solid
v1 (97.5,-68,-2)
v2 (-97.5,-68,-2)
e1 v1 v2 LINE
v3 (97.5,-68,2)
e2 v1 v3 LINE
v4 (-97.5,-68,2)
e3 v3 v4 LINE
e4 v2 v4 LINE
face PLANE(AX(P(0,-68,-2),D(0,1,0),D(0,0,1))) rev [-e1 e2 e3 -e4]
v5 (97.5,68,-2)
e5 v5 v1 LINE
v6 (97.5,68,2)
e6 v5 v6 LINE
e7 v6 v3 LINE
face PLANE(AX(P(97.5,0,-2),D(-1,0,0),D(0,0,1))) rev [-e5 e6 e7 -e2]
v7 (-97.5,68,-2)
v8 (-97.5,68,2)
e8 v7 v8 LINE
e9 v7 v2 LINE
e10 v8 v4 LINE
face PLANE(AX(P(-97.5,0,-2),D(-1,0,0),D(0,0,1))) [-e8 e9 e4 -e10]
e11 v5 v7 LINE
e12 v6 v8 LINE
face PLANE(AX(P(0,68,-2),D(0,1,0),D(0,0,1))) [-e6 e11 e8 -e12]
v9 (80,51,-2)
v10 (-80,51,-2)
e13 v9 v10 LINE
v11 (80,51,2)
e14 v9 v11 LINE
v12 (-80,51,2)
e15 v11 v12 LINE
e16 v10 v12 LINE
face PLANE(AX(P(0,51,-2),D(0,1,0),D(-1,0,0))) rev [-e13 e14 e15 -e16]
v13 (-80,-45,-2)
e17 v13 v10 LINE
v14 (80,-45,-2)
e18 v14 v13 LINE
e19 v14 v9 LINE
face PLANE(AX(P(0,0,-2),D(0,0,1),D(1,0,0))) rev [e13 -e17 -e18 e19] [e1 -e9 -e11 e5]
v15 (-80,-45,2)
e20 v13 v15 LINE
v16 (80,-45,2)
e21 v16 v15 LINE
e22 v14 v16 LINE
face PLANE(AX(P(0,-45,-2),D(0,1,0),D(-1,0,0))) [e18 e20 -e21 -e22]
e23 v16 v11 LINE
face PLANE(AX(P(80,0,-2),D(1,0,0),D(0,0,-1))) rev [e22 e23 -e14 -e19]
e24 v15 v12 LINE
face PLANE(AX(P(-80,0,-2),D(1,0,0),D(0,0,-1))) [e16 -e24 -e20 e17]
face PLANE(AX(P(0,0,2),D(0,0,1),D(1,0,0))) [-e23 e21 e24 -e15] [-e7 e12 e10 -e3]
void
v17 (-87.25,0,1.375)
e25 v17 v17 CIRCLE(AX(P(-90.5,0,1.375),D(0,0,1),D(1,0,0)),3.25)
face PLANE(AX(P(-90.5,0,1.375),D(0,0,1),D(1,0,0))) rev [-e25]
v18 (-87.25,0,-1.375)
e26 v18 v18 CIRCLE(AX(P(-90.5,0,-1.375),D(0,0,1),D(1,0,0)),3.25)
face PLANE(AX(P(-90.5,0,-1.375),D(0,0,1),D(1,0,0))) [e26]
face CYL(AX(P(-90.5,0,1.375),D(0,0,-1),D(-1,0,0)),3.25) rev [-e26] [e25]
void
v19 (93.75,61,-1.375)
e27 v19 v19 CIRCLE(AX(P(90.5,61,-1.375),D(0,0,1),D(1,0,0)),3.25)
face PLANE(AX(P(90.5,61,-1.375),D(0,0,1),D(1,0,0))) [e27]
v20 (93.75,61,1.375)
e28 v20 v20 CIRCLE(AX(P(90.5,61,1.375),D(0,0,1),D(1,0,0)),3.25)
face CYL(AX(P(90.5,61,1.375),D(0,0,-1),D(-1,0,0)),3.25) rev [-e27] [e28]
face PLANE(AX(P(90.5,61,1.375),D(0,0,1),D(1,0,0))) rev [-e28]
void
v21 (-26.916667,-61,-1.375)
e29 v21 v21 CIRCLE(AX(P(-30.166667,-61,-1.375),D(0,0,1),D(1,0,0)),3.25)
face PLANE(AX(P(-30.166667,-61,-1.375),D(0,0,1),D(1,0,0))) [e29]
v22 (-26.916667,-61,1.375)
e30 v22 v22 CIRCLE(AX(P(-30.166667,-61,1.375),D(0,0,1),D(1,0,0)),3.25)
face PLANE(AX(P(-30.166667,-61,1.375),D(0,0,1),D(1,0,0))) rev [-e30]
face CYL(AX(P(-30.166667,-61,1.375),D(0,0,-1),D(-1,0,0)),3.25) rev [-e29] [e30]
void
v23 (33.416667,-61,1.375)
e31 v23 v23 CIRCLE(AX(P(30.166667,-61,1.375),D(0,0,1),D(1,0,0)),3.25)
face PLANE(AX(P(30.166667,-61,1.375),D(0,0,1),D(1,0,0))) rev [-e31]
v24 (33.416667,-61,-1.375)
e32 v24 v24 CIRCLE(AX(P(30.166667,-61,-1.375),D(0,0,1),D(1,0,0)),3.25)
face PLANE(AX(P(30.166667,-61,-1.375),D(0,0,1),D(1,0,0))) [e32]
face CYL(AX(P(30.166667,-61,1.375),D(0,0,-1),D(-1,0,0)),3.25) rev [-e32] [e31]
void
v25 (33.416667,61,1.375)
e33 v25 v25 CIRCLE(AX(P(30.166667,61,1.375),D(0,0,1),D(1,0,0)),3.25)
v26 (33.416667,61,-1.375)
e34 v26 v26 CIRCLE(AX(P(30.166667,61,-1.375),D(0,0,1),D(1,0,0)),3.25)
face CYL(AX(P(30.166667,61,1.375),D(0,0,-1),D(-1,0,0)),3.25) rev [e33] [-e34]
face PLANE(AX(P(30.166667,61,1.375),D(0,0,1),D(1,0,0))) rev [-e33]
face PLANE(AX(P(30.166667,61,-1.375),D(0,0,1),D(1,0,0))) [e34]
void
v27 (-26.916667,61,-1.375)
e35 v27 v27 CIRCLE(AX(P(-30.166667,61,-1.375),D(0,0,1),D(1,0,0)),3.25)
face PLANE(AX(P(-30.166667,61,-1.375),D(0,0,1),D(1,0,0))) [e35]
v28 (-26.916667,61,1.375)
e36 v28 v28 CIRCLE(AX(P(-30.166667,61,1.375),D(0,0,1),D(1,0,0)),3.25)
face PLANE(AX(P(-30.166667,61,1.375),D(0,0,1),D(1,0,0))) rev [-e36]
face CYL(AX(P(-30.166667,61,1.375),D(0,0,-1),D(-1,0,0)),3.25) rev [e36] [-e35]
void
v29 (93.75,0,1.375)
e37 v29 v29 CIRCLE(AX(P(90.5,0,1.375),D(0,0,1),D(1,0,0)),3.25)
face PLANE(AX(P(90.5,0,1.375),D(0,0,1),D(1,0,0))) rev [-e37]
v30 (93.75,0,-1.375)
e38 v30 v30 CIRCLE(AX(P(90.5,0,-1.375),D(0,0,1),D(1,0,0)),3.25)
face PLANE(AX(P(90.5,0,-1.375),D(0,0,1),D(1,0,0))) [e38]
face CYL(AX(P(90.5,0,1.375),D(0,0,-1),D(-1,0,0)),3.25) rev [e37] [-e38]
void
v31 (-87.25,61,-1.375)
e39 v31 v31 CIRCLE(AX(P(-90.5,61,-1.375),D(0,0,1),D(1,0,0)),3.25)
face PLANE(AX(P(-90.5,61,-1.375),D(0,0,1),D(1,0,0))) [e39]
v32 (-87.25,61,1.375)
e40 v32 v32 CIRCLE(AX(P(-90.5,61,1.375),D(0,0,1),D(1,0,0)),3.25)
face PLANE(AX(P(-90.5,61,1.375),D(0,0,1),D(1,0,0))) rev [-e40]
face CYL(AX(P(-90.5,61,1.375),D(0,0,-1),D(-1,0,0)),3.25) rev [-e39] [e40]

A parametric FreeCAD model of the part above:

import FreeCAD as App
import Part
import Sketcher

V = App.Vector
Q = App.Units.Quantity

doc = App.newDocument("Part")
body = doc.addObject("PartDesign::Body", "Body")

# Sketch on XY plane
sketch1 = body.newObject("Sketcher::SketchObject", "Sketch")
sketch1.AttachmentSupport = (doc.getObject("XY_Plane"), [""])
sketch1.MapMode = "FlatFace"
sketch1.addGeometry([
    Part.LineSegment(V(-97.5, 68, 0), V(-97.5, -68, 0)),  # 0
    Part.LineSegment(V(-97.5, -68, 0), V(97.5, -68, 0)),  # 1
    Part.LineSegment(V(97.5, -68, 0), V(97.5, 68, 0)),  # 2
    Part.LineSegment(V(97.5, 68, 0), V(-97.5, 68, 0)),  # 3
    Part.LineSegment(V(-80, 51, 0), V(80, 51, 0)),  # 4
    Part.LineSegment(V(80, 51, 0), V(80, -45, 0)),  # 5
    Part.LineSegment(V(80, -45, 0), V(-80, -45, 0)),  # 6
    Part.LineSegment(V(-80, -45, 0), V(-80, 51, 0)),  # 7
], False)
sketch1.addConstraint([
    Sketcher.Constraint("Coincident", 0, 2, 1, 1),
    Sketcher.Constraint("Coincident", 1, 2, 2, 1),
    Sketcher.Constraint("Coincident", 2, 2, 3, 1),
    Sketcher.Constraint("Coincident", 3, 2, 0, 1),
    Sketcher.Constraint("Coincident", 4, 2, 5, 1),
    Sketcher.Constraint("Coincident", 5, 2, 6, 1),
    Sketcher.Constraint("Coincident", 6, 2, 7, 1),
    Sketcher.Constraint("Coincident", 7, 2, 4, 1),
    Sketcher.Constraint("Vertical", 0),
    Sketcher.Constraint("Horizontal", 1),
    Sketcher.Constraint("Vertical", 2),
    Sketcher.Constraint("Horizontal", 3),
    Sketcher.Constraint("Horizontal", 4),
    Sketcher.Constraint("Vertical", 5),
    Sketcher.Constraint("Horizontal", 6),
    Sketcher.Constraint("Vertical", 7),
    Sketcher.Constraint("Symmetric", 0, 2, 2, 2, -1, 1),
    Sketcher.Constraint("DistanceX", 1, 1, 1, 2, Q("195 mm")),
    Sketcher.Constraint("DistanceX", 4, 1, 4, 2, Q("160 mm")),
    Sketcher.Constraint("DistanceY", 0, 2, 0, 1, Q("136 mm")),
    Sketcher.Constraint("DistanceY", 5, 2, 5, 1, Q("96 mm")),
    Sketcher.Constraint("DistanceX", -1, 1, 4, 2, Q("80 mm")),
    Sketcher.Constraint("DistanceY", -1, 1, 4, 2, Q("51 mm")),
])
pad1 = body.newObject("PartDesign::Pad", "Pad")
pad1.Profile = sketch1
pad1.Length = 2
pad1.Reversed = True

# Sketch on XY plane
sketch2 = body.newObject("Sketcher::SketchObject", "Sketch001")
sketch2.AttachmentSupport = (doc.getObject("XY_Plane"), [""])
sketch2.MapMode = "FlatFace"
sketch2.addGeometry([
    Part.LineSegment(V(-97.5, 68, 0), V(-97.5, -68, 0)),  # 0
    Part.LineSegment(V(-97.5, -68, 0), V(97.5, -68, 0)),  # 1
    Part.LineSegment(V(97.5, -68, 0), V(97.5, 68, 0)),  # 2
    Part.LineSegment(V(97.5, 68, 0), V(-97.5, 68, 0)),  # 3
    Part.LineSegment(V(-80, 51, 0), V(80, 51, 0)),  # 4
    Part.LineSegment(V(80, 51, 0), V(80, -45, 0)),  # 5
    Part.LineSegment(V(80, -45, 0), V(-80, -45, 0)),  # 6
    Part.LineSegment(V(-80, -45, 0), V(-80, 51, 0)),  # 7
], False)
sketch2.addConstraint([
    Sketcher.Constraint("Coincident", 0, 2, 1, 1),
    Sketcher.Constraint("Coincident", 1, 2, 2, 1),
    Sketcher.Constraint("Coincident", 2, 2, 3, 1),
    Sketcher.Constraint("Coincident", 3, 2, 0, 1),
    Sketcher.Constraint("Coincident", 4, 2, 5, 1),
    Sketcher.Constraint("Coincident", 5, 2, 6, 1),
    Sketcher.Constraint("Coincident", 6, 2, 7, 1),
    Sketcher.Constraint("Coincident", 7, 2, 4, 1),
    Sketcher.Constraint("Vertical", 0),
    Sketcher.Constraint("Horizontal", 1),
    Sketcher.Constraint("Vertical", 2),
    Sketcher.Constraint("Horizontal", 3),
    Sketcher.Constraint("Horizontal", 4),
    Sketcher.Constraint("Vertical", 5),
    Sketcher.Constraint("Horizontal", 6),
    Sketcher.Constraint("Vertical", 7),
    Sketcher.Constraint("Symmetric", 0, 2, 2, 2, -1, 1),
    Sketcher.Constraint("DistanceX", 1, 1, 1, 2, Q("195 mm")),
    Sketcher.Constraint("DistanceX", 4, 1, 4, 2, Q("160 mm")),
    Sketcher.Constraint("DistanceY", 0, 2, 0, 1, Q("136 mm")),
    Sketcher.Constraint("DistanceY", 5, 2, 5, 1, Q("96 mm")),
    Sketcher.Constraint("DistanceX", -1, 1, 4, 2, Q("80 mm")),
    Sketcher.Constraint("DistanceY", -1, 1, 4, 2, Q("51 mm")),
])
pad2 = body.newObject("PartDesign::Pad", "Pad001")
pad2.Profile = sketch2
pad2.Length = 2

# Sketch on XY plane
sketch3 = body.newObject("Sketcher::SketchObject", "Sketch002")
sketch3.AttachmentSupport = (doc.getObject("XY_Plane"), [""])
sketch3.MapMode = "FlatFace"
sketch3.addGeometry([
    Part.Circle(V(-90.5, 61, 0), V(0, 0, 1), 3.25),  # 0
    Part.Circle(V(90.5, 61, 0), V(0, 0, 1), 3.25),  # 1
    Part.Circle(V(-30.166667, -61, 0), V(0, 0, 1), 3.25),  # 2
    Part.Circle(V(30.166667, -61, 0), V(0, 0, 1), 3.25),  # 3
    Part.Circle(V(90.5, 0, 0), V(0, 0, 1), 3.25),  # 4
    Part.Circle(V(-30.166667, 61, 0), V(0, 0, 1), 3.25),  # 5
    Part.Circle(V(30.166667, 61, 0), V(0, 0, 1), 3.25),  # 6
    Part.Circle(V(-90.5, 0, 0), V(0, 0, 1), 3.25),  # 7
], False)
sketch3.addConstraint([
    Sketcher.Constraint("Equal", 0, 1),
    Sketcher.Constraint("Equal", 1, 2),
    Sketcher.Constraint("Equal", 2, 3),
    Sketcher.Constraint("Equal", 3, 4),
    Sketcher.Constraint("Equal", 4, 5),
    Sketcher.Constraint("Equal", 5, 6),
    Sketcher.Constraint("Equal", 6, 7),
    Sketcher.Constraint("Symmetric", 3, 3, 5, 3, -1, 1),
    Sketcher.Constraint("Symmetric", 2, 3, 6, 3, -1, 1),
    Sketcher.Constraint("Symmetric", 4, 3, 7, 3, -1, 1),
    Sketcher.Constraint("Symmetric", 0, 3, 1, 3, -2),
    Sketcher.Constraint("Symmetric", 2, 3, 3, 3, -2),
    Sketcher.Constraint("PointOnObject", 4, 3, -1),
    Sketcher.Constraint("Horizontal", 1, 3, 5, 3),
    Sketcher.Constraint("Vertical", 1, 3, 4, 3),
    Sketcher.Constraint("Diameter", 0, Q("6.5 mm")),
    Sketcher.Constraint("DistanceY", -1, 1, 0, 3, Q("61 mm")),
    Sketcher.Constraint("DistanceX", 0, 3, 1, 3, Q("181 mm")),
    Sketcher.Constraint("DistanceX", 2, 3, -1, 1, Q("30.166667 mm")),
])
pocket1 = body.newObject("PartDesign::Pocket", "Pocket")
pocket1.Profile = sketch3
pocket1.Type = "TwoLengths"
pocket1.Length = 1.375
pocket1.Length2 = 1.375
pocket1.Reversed = True

doc.recompute()
